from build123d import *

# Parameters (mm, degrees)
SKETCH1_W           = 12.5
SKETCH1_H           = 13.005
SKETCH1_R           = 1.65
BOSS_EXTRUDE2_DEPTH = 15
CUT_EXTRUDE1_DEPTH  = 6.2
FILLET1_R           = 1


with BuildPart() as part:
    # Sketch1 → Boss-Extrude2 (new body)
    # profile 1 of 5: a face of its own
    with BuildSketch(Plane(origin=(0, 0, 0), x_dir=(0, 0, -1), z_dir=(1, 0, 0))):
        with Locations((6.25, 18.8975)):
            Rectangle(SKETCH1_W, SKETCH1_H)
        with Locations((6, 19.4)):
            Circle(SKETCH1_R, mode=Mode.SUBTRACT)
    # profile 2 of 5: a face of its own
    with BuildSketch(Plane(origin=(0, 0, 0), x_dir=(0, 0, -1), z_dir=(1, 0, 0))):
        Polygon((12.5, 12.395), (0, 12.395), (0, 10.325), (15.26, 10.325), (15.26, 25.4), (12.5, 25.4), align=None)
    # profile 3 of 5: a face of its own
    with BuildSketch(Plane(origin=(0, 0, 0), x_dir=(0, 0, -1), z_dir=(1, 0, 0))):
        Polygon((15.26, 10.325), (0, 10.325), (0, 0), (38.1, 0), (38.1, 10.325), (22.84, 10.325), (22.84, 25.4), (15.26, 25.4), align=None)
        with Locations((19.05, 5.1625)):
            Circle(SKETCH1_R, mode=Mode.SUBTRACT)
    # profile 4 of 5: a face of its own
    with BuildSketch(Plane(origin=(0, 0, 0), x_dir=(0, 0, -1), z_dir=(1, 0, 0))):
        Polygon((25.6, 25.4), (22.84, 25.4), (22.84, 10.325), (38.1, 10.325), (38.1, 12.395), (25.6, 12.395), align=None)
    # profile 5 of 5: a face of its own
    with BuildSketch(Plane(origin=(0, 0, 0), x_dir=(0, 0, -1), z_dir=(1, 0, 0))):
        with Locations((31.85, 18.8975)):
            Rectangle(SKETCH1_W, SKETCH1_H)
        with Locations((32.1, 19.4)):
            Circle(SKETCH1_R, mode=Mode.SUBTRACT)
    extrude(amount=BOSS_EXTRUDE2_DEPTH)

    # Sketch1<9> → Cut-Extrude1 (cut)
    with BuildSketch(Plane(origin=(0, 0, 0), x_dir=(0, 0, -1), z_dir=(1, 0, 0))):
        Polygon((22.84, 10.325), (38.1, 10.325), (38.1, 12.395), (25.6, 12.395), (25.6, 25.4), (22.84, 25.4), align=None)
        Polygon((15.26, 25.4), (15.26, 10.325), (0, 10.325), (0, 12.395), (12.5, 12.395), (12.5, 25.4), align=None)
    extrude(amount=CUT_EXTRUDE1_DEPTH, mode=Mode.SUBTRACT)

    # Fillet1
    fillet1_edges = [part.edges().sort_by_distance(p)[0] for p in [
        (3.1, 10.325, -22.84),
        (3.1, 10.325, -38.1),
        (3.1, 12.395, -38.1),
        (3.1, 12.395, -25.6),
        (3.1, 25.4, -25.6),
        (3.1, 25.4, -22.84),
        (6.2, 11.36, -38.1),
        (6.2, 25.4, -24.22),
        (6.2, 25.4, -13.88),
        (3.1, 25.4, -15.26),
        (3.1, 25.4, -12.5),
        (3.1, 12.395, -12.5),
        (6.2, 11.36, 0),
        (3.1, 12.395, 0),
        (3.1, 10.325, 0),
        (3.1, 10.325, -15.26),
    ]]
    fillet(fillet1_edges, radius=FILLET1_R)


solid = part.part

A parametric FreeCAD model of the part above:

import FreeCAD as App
import Part
import Sketcher
Q = App.Units.Quantity


def edges_at(feature, points):
    """Names of the edges that pass closest to the given points."""
    edges = feature.Shape.Edges
    near = lambda p: min(range(len(edges)), key=lambda i: edges[i].distToShape(Part.Vertex(*p))[0])
    return sorted({f"Edge{near(p) + 1}" for p in points})


def add_polygon(sketch, points):
    """Adds a closed chain of lines whose ends are joined by coincident constraints."""
    first, n = sketch.GeometryCount, len(points)
    for a, b in zip(points, points[1:] + points[:1]):
        sketch.addGeometry(Part.LineSegment(App.Vector(*a, 0), App.Vector(*b, 0)), False)
    for i in range(n):
        sketch.addConstraint(Sketcher.Constraint("Coincident", first + i, 2, first + (i + 1) % n, 1))

doc = App.newDocument("Part")
body = doc.addObject("PartDesign::Body", "Body")

# Sketch on YZ plane
sketch1 = body.newObject("Sketcher::SketchObject", "Sketch")
sketch1.AttachmentSupport = (doc.getObject("YZ_Plane"), [""])
sketch1.MapMode = "FlatFace"
add_polygon(sketch1, [(25.4, 0), (0, 0), (0, -38.1), (25.4, -38.1)])  # lines 0-3
sketch1.addGeometry(Part.Circle(App.Vector(19.4, -6, 0), App.Vector(0, 0, 1), 1.6), False)  # 4
sketch1.addGeometry(Part.Circle(App.Vector(5.2, -19.1, 0), App.Vector(0, 0, 1), 1.6), False)  # 5
sketch1.addGeometry(Part.Circle(App.Vector(19.4, -32.1, 0), App.Vector(0, 0, 1), 1.6), False)  # 6
sketch1.addConstraint([
    Sketcher.Constraint("Horizontal", 0),
    Sketcher.Constraint("Vertical", 1),
    Sketcher.Constraint("Horizontal", 2),
    Sketcher.Constraint("Vertical", 3),
    Sketcher.Constraint("Coincident", 0, 2, -1, 1),
    Sketcher.Constraint("Equal", 4, 5),
    Sketcher.Constraint("Equal", 5, 6),
    Sketcher.Constraint("Vertical", 4, 3, 6, 3),
    Sketcher.Constraint("Diameter", 4, Q("3.3 mm")),
    Sketcher.Constraint("DistanceX", 0, 2, 0, 1, Q("25.4 mm")),
    Sketcher.Constraint("DistanceY", 1, 2, 1, 1, Q("38.1 mm")),
    Sketcher.Constraint("DistanceY", 4, 3, -1, 1, Q("6 mm")),
    Sketcher.Constraint("DistanceY", 1, 2, 6, 3, Q("6 mm")),
    Sketcher.Constraint("DistanceX", 6, 3, 2, 2, Q("6 mm")),
    Sketcher.Constraint("DistanceY", 5, 3, -1, 1, Q("19.05 mm")),
    Sketcher.Constraint("DistanceX", -1, 1, 5, 3, Q("5.1625 mm")),
])
pad1 = body.newObject("PartDesign::Pad", "Pad")
pad1.Profile = sketch1
pad1.Length = 15

# Sketch on YZ plane
sketch2 = body.newObject("Sketcher::SketchObject", "Sketch001")
sketch2.AttachmentSupport = (doc.getObject("YZ_Plane"), [""])
sketch2.MapMode = "FlatFace"
add_polygon(sketch2, [(10.3, -22.8), (10.3, -38.1), (12.4, -38.1), (12.4, -25.6), (25.4, -25.6), (25.4, -22.8)])  # lines 0-5
add_polygon(sketch2, [(10.3, -15.3), (25.4, -15.3), (25.4, -12.5), (12.4, -12.5), (12.4, 0), (10.3, 0)])  # lines 6-11
sketch2.addConstraint([
    Sketcher.Constraint("Vertical", 0),
    Sketcher.Constraint("Horizontal", 1),
    Sketcher.Constraint("Vertical", 2),
    Sketcher.Constraint("Horizontal", 3),
    Sketcher.Constraint("Vertical", 4),
    Sketcher.Constraint("Horizontal", 5),
    Sketcher.Constraint("Horizontal", 6),
    Sketcher.Constraint("Vertical", 7),
    Sketcher.Constraint("Horizontal", 8),
    Sketcher.Constraint("Vertical", 9),
    Sketcher.Constraint("Horizontal", 10),
    Sketcher.Constraint("Vertical", 11),
    Sketcher.Constraint("PointOnObject", 9, 2, -1),
    Sketcher.Constraint("Vertical", 4, 2, 6, 2),
    Sketcher.Constraint("Vertical", 2, 2, 8, 2),
    Sketcher.Constraint("Vertical", 5, 2, 10, 2),
    Sketcher.Constraint("Equal", 4, 7),
    Sketcher.Constraint("Equal", 2, 9),
    Sketcher.Constraint("DistanceY", 2, 1, 2, 2, Q("12.5 mm")),
    Sketcher.Constraint("DistanceX", 1, 1, 1, 2, Q("2.07 mm")),
    Sketcher.Constraint("DistanceY", 0, 2, 0, 1, Q("15.26 mm")),
    Sketcher.Constraint("DistanceY", 0, 2, -1, 1, Q("38.1 mm")),
    Sketcher.Constraint("DistanceX", -1, 1, 3, 2, Q("25.4 mm")),
    Sketcher.Constraint("DistanceX", 3, 1, 3, 2, Q("13.005 mm")),
])
pocket1 = body.newObject("PartDesign::Pocket", "Pocket")
pocket1.Profile = sketch2
pocket1.Length = 6.2
pocket1.Reversed = True
doc.recompute()

fillet = body.newObject("PartDesign::Fillet", "Fillet")
fillet.Base = (pocket1, edges_at(pocket1, [
    (3.1, 10.325, -22.84),
    (3.1, 10.325, -38.1),
    (3.1, 12.395, -38.1),
    (3.1, 12.395, -25.6),
    (3.1, 25.4, -25.6),
    (3.1, 25.4, -22.84),
    (6.2, 11.36, -38.1),
    (6.2, 25.4, -24.22),
    (6.2, 25.4, -13.88),
    (3.1, 25.4, -15.26),
    (3.1, 25.4, -12.5),
    (3.1, 12.395, -12.5),
    (6.2, 11.36, 0),
    (3.1, 12.395, 0),
    (3.1, 10.325, 0),
    (3.1, 10.325, -15.26),
]))
fillet.Radius = 1

doc.recompute()
